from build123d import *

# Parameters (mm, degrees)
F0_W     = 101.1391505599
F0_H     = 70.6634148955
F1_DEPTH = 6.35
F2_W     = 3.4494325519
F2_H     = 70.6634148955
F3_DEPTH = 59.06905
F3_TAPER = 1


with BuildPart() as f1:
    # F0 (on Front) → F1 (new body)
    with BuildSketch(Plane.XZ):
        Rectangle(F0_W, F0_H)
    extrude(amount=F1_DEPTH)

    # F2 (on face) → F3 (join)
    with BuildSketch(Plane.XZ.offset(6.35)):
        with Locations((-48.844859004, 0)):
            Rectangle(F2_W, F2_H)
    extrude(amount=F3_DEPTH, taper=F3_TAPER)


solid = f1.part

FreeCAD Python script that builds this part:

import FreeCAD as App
import Part
import Sketcher
Q = App.Units.Quantity


def add_polygon(sketch, points):
    """Adds a closed chain of lines whose ends are joined by coincident constraints."""
    first, n = sketch.GeometryCount, len(points)
    for a, b in zip(points, points[1:] + points[:1]):
        sketch.addGeometry(Part.LineSegment(App.Vector(*a, 0), App.Vector(*b, 0)), False)
    for i in range(n):
        sketch.addConstraint(Sketcher.Constraint("Coincident", first + i, 2, first + (i + 1) % n, 1))

doc = App.newDocument("Part")
body = doc.addObject("PartDesign::Body", "Body")

# Sketch on XZ plane
sketch1 = body.newObject("Sketcher::SketchObject", "Sketch")
sketch1.AttachmentSupport = (doc.getObject("XZ_Plane"), [""])
sketch1.MapMode = "FlatFace"
add_polygon(sketch1, [(-51, 35), (-51, -35), (51, -35), (51, 35)])  # lines 0-3
sketch1.addConstraint([
    Sketcher.Constraint("Vertical", 0),
    Sketcher.Constraint("Horizontal", 1),
    Sketcher.Constraint("Vertical", 2),
    Sketcher.Constraint("Horizontal", 3),
    Sketcher.Constraint("Symmetric", 0, 2, 2, 2, -1, 1),
    Sketcher.Constraint("DistanceX", 1, 1, 1, 2, Q("101.139151 mm")),
    Sketcher.Constraint("DistanceY", 0, 2, 0, 1, Q("70.663415 mm")),
])
pad1 = body.newObject("PartDesign::Pad", "Pad")
pad1.Profile = sketch1
pad1.Length = Q("0.25 in")

# Sketch on XZ plane
sketch2 = body.newObject("Sketcher::SketchObject", "Sketch001")
sketch2.AttachmentSupport = (doc.getObject("XZ_Plane"), [""])
sketch2.MapMode = "FlatFace"
sketch2.AttachmentOffset = App.Placement(App.Vector(0, 0, 0.25 * 25.4), App.Rotation())
add_polygon(sketch2, [(-50.6, 35.3), (-50.6, -35.3), (-47.1, -35.3), (-47.1, 35.3)])  # lines 0-3
sketch2.addConstraint([
    Sketcher.Constraint("Vertical", 0),
    Sketcher.Constraint("Horizontal", 1),
    Sketcher.Constraint("Vertical", 2),
    Sketcher.Constraint("Horizontal", 3),
    Sketcher.Constraint("DistanceX", 1, 1, 1, 2, Q("3.449433 mm")),
    Sketcher.Constraint("DistanceY", 0, 2, 0, 1, Q("70.663415 mm")),
    Sketcher.Constraint("DistanceX", 0, 2, -1, 1, Q("50.569575 mm")),
    Sketcher.Constraint("DistanceY", 0, 2, -1, 1, Q("35.331707 mm")),
])
pad2 = body.newObject("PartDesign::Pad", "Pad001")
pad2.Profile = sketch2
pad2.Length = 59.06905
pad2.TaperAngle = -1

doc.recompute()
